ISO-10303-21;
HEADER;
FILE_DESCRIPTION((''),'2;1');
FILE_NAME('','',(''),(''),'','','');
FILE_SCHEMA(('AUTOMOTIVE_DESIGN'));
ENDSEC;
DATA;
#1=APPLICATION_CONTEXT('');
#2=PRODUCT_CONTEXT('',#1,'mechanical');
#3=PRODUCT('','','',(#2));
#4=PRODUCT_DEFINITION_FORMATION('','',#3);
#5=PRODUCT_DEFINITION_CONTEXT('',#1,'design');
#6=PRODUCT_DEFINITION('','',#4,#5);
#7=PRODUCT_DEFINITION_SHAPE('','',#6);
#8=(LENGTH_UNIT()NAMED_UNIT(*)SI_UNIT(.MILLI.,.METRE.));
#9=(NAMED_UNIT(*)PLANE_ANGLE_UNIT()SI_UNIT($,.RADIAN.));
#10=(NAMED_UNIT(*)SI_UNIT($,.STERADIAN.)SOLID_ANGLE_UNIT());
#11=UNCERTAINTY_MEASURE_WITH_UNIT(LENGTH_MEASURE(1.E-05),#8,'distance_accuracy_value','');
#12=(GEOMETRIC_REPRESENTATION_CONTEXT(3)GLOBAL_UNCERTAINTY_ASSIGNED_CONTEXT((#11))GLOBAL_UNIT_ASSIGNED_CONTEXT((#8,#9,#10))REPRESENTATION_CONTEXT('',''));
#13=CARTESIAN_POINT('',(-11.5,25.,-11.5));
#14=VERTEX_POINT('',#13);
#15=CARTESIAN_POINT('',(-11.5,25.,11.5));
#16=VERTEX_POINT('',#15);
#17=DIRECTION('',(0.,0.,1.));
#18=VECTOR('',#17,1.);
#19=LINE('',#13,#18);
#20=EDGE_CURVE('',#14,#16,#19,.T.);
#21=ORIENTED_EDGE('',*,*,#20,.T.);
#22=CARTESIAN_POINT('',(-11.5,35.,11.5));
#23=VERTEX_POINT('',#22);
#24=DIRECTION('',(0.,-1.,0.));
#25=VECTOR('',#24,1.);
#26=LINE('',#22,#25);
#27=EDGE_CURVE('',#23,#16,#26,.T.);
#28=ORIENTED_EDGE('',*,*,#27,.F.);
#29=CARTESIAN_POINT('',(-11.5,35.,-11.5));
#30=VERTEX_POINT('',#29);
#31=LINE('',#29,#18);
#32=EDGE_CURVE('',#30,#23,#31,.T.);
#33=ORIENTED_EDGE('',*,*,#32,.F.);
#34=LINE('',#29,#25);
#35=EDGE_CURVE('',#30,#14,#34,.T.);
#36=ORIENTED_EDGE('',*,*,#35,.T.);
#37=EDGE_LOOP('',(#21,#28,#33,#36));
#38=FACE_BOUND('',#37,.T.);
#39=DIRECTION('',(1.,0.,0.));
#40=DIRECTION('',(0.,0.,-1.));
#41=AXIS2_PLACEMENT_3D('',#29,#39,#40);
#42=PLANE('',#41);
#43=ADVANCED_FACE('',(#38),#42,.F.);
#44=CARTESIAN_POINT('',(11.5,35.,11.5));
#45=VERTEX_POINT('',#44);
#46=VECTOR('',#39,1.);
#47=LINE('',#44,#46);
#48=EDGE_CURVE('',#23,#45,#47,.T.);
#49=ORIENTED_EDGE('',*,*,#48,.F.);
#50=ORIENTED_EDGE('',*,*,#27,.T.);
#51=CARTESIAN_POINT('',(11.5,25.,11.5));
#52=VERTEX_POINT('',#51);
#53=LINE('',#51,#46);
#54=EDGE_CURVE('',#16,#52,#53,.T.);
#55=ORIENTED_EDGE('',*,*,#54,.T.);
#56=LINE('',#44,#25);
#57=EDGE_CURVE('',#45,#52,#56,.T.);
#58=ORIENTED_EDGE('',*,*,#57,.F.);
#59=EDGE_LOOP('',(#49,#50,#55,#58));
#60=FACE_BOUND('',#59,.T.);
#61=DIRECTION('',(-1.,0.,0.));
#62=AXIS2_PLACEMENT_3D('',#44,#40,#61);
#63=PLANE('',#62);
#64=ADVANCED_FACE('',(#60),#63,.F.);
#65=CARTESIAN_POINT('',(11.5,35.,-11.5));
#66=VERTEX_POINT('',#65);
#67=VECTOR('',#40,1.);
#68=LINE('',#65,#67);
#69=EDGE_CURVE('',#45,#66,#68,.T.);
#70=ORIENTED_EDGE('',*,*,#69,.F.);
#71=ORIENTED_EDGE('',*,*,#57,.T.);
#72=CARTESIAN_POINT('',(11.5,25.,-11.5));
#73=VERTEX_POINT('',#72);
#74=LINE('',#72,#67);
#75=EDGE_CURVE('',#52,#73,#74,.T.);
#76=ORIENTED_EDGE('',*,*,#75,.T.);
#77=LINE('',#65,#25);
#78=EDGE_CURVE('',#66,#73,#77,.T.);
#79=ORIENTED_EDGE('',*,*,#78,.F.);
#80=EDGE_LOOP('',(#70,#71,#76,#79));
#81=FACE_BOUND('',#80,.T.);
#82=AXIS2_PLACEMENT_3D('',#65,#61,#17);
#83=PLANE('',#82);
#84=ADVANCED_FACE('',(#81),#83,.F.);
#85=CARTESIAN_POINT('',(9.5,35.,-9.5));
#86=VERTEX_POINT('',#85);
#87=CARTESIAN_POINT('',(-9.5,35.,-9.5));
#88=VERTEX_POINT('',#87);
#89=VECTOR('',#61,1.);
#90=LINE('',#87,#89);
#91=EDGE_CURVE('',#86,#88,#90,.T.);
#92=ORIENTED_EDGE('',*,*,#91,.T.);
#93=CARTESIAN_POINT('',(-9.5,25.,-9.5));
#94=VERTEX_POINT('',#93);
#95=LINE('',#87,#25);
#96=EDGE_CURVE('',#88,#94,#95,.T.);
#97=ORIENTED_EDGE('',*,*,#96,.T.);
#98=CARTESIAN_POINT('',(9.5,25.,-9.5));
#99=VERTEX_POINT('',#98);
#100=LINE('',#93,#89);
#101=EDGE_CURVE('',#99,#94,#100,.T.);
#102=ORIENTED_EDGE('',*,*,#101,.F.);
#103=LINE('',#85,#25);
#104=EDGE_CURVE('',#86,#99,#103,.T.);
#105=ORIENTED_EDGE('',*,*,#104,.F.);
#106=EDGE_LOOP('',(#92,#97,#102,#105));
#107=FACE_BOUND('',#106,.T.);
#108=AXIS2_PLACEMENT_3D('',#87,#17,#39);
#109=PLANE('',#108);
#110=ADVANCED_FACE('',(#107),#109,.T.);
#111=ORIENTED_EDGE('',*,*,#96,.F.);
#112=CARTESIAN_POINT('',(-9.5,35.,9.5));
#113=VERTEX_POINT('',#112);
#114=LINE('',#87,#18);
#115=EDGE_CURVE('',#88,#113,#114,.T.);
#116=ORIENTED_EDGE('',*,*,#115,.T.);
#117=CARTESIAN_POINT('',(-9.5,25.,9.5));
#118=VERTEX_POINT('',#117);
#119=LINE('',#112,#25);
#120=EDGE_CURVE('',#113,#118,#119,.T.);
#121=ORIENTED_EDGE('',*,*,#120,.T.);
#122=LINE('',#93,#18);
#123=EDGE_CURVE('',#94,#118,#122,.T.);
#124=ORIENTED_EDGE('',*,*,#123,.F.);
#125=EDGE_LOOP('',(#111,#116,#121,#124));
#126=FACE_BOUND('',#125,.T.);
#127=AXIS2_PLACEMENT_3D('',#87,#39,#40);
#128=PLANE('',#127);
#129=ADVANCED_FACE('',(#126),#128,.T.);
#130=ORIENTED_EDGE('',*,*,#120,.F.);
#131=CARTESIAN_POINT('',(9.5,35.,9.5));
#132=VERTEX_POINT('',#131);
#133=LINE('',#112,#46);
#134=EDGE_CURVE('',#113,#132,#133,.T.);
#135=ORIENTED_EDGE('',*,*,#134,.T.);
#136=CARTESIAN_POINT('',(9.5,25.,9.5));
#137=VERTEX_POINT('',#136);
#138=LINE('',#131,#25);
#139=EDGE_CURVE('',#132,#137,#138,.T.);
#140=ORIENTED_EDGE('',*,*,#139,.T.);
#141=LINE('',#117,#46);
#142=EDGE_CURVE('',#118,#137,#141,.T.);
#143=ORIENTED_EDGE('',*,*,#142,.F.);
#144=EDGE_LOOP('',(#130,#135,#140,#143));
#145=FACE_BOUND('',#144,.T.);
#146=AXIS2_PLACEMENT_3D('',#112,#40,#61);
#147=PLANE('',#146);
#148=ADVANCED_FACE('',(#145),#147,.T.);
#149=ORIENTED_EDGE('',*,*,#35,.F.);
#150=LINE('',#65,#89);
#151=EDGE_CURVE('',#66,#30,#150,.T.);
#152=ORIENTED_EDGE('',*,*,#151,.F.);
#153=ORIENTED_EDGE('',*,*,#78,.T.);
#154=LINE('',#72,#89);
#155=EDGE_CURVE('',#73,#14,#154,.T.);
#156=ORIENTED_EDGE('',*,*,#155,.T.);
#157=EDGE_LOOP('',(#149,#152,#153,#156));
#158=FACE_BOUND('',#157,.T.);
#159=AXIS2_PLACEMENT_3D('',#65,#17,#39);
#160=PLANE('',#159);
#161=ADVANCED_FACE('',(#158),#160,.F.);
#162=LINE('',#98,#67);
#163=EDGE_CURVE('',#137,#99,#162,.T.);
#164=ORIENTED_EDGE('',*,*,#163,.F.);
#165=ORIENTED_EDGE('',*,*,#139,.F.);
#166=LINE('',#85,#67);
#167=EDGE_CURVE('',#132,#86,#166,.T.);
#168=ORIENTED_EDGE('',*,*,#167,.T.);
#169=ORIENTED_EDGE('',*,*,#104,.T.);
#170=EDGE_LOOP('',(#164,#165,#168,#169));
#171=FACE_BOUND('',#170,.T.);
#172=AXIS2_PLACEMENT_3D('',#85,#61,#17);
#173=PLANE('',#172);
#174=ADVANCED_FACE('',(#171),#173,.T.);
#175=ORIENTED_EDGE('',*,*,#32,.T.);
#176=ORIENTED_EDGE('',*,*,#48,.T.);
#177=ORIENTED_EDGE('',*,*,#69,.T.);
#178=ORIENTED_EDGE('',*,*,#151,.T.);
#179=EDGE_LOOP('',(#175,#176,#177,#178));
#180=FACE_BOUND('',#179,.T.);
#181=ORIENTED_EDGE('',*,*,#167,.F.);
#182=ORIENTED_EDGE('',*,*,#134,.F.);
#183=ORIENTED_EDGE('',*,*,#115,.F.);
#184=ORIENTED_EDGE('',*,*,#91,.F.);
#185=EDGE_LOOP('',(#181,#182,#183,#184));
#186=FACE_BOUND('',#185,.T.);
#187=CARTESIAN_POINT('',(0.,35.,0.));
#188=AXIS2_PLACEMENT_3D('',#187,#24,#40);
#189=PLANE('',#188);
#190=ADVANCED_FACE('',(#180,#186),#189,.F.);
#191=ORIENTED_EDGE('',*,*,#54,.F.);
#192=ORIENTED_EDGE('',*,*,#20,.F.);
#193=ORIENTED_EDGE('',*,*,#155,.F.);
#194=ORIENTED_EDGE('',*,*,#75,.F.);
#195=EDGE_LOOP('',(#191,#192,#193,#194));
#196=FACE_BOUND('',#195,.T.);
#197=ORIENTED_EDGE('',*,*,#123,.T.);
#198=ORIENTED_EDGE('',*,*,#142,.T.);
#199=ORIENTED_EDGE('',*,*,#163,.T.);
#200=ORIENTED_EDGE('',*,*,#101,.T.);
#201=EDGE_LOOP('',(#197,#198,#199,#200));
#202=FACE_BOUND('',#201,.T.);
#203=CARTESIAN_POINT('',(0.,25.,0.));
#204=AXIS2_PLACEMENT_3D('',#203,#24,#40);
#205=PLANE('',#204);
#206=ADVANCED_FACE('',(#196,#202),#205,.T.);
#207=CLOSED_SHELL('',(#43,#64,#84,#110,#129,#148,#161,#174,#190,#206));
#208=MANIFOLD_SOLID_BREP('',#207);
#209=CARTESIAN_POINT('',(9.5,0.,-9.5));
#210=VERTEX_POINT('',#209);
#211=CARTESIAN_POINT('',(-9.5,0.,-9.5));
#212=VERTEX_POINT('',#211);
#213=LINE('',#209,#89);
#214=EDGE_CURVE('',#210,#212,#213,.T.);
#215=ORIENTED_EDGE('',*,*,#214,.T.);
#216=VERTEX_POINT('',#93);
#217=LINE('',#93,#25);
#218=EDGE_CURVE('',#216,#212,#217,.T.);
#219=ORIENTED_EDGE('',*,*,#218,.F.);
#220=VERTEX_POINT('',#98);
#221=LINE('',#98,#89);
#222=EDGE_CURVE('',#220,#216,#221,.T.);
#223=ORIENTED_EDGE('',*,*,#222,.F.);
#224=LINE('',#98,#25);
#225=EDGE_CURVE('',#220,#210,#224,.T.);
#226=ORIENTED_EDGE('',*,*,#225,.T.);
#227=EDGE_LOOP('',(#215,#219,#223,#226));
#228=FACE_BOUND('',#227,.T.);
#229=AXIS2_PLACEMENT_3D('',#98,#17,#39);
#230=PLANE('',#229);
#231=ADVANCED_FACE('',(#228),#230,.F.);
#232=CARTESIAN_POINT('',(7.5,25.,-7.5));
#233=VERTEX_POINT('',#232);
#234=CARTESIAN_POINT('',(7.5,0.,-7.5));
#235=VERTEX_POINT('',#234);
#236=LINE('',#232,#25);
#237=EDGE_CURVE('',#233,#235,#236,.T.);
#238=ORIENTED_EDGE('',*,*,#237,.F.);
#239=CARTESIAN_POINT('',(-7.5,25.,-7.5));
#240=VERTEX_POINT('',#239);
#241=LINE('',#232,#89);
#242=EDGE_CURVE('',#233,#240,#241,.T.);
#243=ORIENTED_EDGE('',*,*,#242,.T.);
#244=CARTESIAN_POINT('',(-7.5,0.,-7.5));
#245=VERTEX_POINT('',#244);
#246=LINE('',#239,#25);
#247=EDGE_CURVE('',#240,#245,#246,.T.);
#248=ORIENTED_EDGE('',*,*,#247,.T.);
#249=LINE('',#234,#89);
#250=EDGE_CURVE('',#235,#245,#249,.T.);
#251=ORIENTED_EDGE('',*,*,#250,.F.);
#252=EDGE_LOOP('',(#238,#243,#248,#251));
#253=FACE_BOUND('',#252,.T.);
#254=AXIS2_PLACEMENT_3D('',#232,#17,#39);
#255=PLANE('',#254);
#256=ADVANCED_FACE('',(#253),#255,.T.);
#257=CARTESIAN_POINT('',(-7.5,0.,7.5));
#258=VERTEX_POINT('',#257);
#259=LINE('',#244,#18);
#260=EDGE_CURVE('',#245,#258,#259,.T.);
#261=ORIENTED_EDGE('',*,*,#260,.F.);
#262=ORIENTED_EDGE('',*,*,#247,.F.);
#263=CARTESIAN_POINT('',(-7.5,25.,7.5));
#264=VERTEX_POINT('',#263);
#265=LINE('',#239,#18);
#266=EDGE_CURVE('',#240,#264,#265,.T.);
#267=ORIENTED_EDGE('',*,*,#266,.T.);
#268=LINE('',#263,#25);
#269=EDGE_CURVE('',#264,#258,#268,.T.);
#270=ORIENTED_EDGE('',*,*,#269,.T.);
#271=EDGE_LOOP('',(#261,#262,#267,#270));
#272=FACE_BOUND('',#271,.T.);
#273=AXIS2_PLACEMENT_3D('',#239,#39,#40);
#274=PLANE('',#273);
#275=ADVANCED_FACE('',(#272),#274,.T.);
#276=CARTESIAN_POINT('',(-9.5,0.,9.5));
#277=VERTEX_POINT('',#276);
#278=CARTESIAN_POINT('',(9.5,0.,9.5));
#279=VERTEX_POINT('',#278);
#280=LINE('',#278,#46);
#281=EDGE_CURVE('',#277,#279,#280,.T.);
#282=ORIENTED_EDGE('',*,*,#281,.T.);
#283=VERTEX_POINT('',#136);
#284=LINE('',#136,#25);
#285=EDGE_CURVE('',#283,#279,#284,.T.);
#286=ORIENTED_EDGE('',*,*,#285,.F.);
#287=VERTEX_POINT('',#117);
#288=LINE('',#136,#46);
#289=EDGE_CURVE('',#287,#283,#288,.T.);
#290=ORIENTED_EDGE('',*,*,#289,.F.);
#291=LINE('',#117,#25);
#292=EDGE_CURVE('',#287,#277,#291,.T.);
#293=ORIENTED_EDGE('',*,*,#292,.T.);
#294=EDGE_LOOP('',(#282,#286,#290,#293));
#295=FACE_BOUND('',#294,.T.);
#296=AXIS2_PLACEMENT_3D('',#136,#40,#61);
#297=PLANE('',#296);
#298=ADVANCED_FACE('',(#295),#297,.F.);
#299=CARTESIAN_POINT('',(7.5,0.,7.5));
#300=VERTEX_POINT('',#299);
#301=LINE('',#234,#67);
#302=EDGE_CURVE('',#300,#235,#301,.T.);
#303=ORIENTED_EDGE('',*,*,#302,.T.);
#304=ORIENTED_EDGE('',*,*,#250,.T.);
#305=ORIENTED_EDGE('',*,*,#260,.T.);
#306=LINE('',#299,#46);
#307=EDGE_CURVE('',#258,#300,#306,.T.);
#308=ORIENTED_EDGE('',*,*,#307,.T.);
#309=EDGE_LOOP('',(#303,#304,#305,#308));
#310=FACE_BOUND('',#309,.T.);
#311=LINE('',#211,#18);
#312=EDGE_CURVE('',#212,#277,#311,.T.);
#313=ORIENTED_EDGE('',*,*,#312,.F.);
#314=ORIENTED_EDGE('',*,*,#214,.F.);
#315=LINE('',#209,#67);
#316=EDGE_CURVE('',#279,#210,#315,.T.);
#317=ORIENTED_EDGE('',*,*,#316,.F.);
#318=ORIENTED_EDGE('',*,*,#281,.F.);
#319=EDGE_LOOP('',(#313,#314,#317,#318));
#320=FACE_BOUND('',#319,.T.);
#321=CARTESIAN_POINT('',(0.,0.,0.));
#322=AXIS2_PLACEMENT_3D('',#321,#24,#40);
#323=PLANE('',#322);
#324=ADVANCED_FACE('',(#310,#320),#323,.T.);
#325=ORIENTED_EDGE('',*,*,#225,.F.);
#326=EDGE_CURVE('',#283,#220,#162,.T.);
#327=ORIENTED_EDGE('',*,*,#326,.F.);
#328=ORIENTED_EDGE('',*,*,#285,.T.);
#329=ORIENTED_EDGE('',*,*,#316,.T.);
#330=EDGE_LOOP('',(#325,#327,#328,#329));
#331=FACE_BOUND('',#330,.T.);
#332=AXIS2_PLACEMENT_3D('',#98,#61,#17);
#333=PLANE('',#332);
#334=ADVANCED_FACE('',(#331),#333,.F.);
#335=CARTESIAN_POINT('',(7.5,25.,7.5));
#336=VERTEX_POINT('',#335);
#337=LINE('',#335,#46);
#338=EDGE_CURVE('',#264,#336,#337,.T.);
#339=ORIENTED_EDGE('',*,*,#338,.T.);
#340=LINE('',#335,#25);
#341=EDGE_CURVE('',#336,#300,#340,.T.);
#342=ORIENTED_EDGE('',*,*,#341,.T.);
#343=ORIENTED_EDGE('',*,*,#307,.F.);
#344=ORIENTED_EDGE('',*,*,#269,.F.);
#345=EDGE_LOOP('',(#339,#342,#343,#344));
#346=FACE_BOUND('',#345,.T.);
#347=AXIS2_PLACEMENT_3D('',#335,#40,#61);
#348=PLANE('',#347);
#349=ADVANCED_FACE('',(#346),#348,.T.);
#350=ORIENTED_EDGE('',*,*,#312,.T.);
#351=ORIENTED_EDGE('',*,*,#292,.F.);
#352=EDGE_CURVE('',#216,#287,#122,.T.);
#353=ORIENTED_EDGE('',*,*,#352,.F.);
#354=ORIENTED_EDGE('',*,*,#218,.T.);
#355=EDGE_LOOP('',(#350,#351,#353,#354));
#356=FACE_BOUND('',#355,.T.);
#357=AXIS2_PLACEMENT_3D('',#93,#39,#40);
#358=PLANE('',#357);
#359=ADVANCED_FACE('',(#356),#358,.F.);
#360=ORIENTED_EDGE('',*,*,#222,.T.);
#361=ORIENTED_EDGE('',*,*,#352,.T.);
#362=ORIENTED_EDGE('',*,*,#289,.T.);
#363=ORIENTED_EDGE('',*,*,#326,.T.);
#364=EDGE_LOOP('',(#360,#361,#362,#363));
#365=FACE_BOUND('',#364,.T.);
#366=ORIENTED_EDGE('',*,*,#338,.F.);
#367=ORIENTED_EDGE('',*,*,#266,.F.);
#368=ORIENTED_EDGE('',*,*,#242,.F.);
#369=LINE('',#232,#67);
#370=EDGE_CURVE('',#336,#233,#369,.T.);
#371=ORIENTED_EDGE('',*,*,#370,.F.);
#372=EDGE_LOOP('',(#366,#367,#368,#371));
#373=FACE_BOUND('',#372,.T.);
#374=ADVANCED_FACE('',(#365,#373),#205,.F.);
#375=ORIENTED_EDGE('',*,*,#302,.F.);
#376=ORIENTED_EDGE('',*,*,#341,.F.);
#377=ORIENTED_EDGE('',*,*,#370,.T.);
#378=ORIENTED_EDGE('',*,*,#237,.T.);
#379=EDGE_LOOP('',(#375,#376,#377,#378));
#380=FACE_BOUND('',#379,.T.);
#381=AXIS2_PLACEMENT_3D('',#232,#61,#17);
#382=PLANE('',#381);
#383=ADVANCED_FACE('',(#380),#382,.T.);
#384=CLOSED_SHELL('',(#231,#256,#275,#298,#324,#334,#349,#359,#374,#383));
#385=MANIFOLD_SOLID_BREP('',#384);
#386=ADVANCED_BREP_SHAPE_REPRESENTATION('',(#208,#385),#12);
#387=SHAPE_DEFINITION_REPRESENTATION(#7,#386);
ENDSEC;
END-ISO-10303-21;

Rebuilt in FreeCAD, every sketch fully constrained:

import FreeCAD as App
import Part
import Sketcher
from FreeCAD import Vector

doc = App.newDocument("Part")
body = doc.addObject("PartDesign::Body", "Body")

# Sketch on XZ plane
sketch1 = body.newObject("Sketcher::SketchObject", "Sketch")
sketch1.AttachmentSupport = (doc.getObject("XZ_Plane"), [""])
sketch1.MapMode = "FlatFace"
sketch1.addGeometry([
    Part.LineSegment(Vector(-10, -10, 0), Vector(-10, 10, 0)),  # 0
    Part.LineSegment(Vector(-10, 10, 0), Vector(10, 10, 0)),  # 1
    Part.LineSegment(Vector(10, 10, 0), Vector(10, -10, 0)),  # 2
    Part.LineSegment(Vector(10, -10, 0), Vector(-10, -10, 0)),  # 3
    Part.LineSegment(Vector(8, 8, 0), Vector(-8, 8, 0)),  # 4
    Part.LineSegment(Vector(-8, 8, 0), Vector(-8, -8, 0)),  # 5
    Part.LineSegment(Vector(-8, -8, 0), Vector(8, -8, 0)),  # 6
    Part.LineSegment(Vector(8, -8, 0), Vector(8, 8, 0)),  # 7
], False)
sketch1.addConstraint([
    Sketcher.Constraint("Coincident", 0, 2, 1, 1),
    Sketcher.Constraint("Coincident", 1, 2, 2, 1),
    Sketcher.Constraint("Coincident", 2, 2, 3, 1),
    Sketcher.Constraint("Coincident", 3, 2, 0, 1),
    Sketcher.Constraint("Coincident", 4, 2, 5, 1),
    Sketcher.Constraint("Coincident", 5, 2, 6, 1),
    Sketcher.Constraint("Coincident", 6, 2, 7, 1),
    Sketcher.Constraint("Coincident", 7, 2, 4, 1),
    Sketcher.Constraint("Vertical", 0),
    Sketcher.Constraint("Horizontal", 1),
    Sketcher.Constraint("Vertical", 2),
    Sketcher.Constraint("Horizontal", 3),
    Sketcher.Constraint("Horizontal", 4),
    Sketcher.Constraint("Vertical", 5),
    Sketcher.Constraint("Horizontal", 6),
    Sketcher.Constraint("Vertical", 7),
    Sketcher.Constraint("Symmetric", 0, 2, 2, 2, -1, 1),
    Sketcher.Constraint("Symmetric", 4, 2, 6, 2, -1, 1),
    Sketcher.Constraint("Equal", 3, 0),
    Sketcher.Constraint("Equal", 6, 5),
    Sketcher.Constraint("DistanceX", 1, 1, 1, 2, 19.0),
    Sketcher.Constraint("DistanceX", 4, 2, 4, 1, 15.0),
])
pad1 = body.newObject("PartDesign::Pad", "Pad")
pad1.Profile = sketch1
pad1.Length = 25
pad1.Reversed = True
body2 = doc.addObject("PartDesign::Body", "Body001")

# Sketch on XZ plane
sketch2 = body2.newObject("Sketcher::SketchObject", "Sketch001")
sketch2.AttachmentSupport = (doc.getObject("XZ_Plane001"), [""])
sketch2.MapMode = "FlatFace"
sketch2.AttachmentOffset = App.Placement(Vector(0, 0, -25), App.Rotation())
sketch2.addGeometry([
    Part.LineSegment(Vector(-12, -12, 0), Vector(-12, 12, 0)),  # 0
    Part.LineSegment(Vector(-12, 12, 0), Vector(12, 12, 0)),  # 1
    Part.LineSegment(Vector(12, 12, 0), Vector(12, -12, 0)),  # 2
    Part.LineSegment(Vector(12, -12, 0), Vector(-12, -12, 0)),  # 3
    Part.LineSegment(Vector(10, 10, 0), Vector(-10, 10, 0)),  # 4
    Part.LineSegment(Vector(-10, 10, 0), Vector(-10, -10, 0)),  # 5
    Part.LineSegment(Vector(-10, -10, 0), Vector(10, -10, 0)),  # 6
    Part.LineSegment(Vector(10, -10, 0), Vector(10, 10, 0)),  # 7
], False)
sketch2.addConstraint([
    Sketcher.Constraint("Coincident", 0, 2, 1, 1),
    Sketcher.Constraint("Coincident", 1, 2, 2, 1),
    Sketcher.Constraint("Coincident", 2, 2, 3, 1),
    Sketcher.Constraint("Coincident", 3, 2, 0, 1),
    Sketcher.Constraint("Coincident", 4, 2, 5, 1),
    Sketcher.Constraint("Coincident", 5, 2, 6, 1),
    Sketcher.Constraint("Coincident", 6, 2, 7, 1),
    Sketcher.Constraint("Coincident", 7, 2, 4, 1),
    Sketcher.Constraint("Vertical", 0),
    Sketcher.Constraint("Horizontal", 1),
    Sketcher.Constraint("Vertical", 2),
    Sketcher.Constraint("Horizontal", 3),
    Sketcher.Constraint("Horizontal", 4),
    Sketcher.Constraint("Vertical", 5),
    Sketcher.Constraint("Horizontal", 6),
    Sketcher.Constraint("Vertical", 7),
    Sketcher.Constraint("Symmetric", 0, 2, 2, 2, -1, 1),
    Sketcher.Constraint("Symmetric", 4, 2, 6, 2, -1, 1),
    Sketcher.Constraint("Equal", 3, 0),
    Sketcher.Constraint("Equal", 6, 5),
    Sketcher.Constraint("DistanceX", 1, 1, 1, 2, 23.0),
    Sketcher.Constraint("DistanceX", 4, 2, 4, 1, 19.0),
])
pad2 = body2.newObject("PartDesign::Pad", "Pad001")
pad2.Profile = sketch2
pad2.Length = 10
pad2.Reversed = True

doc.recompute()
